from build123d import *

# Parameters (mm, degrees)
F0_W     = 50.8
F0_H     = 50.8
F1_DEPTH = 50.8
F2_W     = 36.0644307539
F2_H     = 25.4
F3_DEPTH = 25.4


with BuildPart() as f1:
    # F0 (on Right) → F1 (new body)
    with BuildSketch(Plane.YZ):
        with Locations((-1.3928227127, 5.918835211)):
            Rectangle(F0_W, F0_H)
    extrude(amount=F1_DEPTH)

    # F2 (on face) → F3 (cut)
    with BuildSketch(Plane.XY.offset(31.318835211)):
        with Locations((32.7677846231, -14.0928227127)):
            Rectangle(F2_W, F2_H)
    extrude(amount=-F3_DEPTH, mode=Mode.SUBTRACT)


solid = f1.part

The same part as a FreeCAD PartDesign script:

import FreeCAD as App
import Part
import Sketcher
Q = App.Units.Quantity


def add_polygon(sketch, points):
    """Adds a closed chain of lines whose ends are joined by coincident constraints."""
    first, n = sketch.GeometryCount, len(points)
    for a, b in zip(points, points[1:] + points[:1]):
        sketch.addGeometry(Part.LineSegment(App.Vector(*a, 0), App.Vector(*b, 0)), False)
    for i in range(n):
        sketch.addConstraint(Sketcher.Constraint("Coincident", first + i, 2, first + (i + 1) % n, 1))

doc = App.newDocument("Part")
body = doc.addObject("PartDesign::Body", "Body")

sketch1 = doc.addObject("Sketcher::SketchObject", "Sketch")
body.addObject(sketch1)
sketch1.AttachmentSupport = (doc.YZ_Plane, [""])
sketch1.MapMode = "FlatFace"
add_polygon(sketch1, [(-27, 31), (-27, -19), (24, -19), (24, 31)])
sketch1.addConstraint(Sketcher.Constraint("Vertical", 0))
sketch1.addConstraint(Sketcher.Constraint("Horizontal", 1))
sketch1.addConstraint(Sketcher.Constraint("Vertical", 2))
sketch1.addConstraint(Sketcher.Constraint("Horizontal", 3))
sketch1.addConstraint(Sketcher.Constraint("Equal", 3, 0))
sketch1.addConstraint(Sketcher.Constraint("DistanceX", 1, 1, 1, 2, Q("2 in")))
sketch1.addConstraint(Sketcher.Constraint("DistanceX", 0, 2, -1, 1, Q("26.792823 mm")))
sketch1.addConstraint(Sketcher.Constraint("DistanceY", 0, 2, -1, 1, Q("19.481165 mm")))
pad1 = doc.addObject("PartDesign::Pad", "Pad")
body.addObject(pad1)
pad1.Profile = sketch1
pad1.Length = Q("2 in")

sketch2 = doc.addObject("Sketcher::SketchObject", "Sketch001")
body.addObject(sketch2)
sketch2.AttachmentSupport = (doc.XY_Plane, [""])
sketch2.MapMode = "FlatFace"
sketch2.AttachmentOffset = App.Placement(App.Vector(0, 0, 31.318835), App.Rotation())
add_polygon(sketch2, [(15, -1), (15, -27), (51, -27), (51, -1)])
sketch2.addConstraint(Sketcher.Constraint("Vertical", 0))
sketch2.addConstraint(Sketcher.Constraint("Horizontal", 1))
sketch2.addConstraint(Sketcher.Constraint("Vertical", 2))
sketch2.addConstraint(Sketcher.Constraint("Horizontal", 3))
sketch2.addConstraint(Sketcher.Constraint("DistanceY", 0, 2, 0, 1, Q("1 in")))
sketch2.addConstraint(Sketcher.Constraint("DistanceX", -1, 1, 1, 2, Q("2 in")))
sketch2.addConstraint(Sketcher.Constraint("DistanceX", 1, 1, 1, 2, Q("36.064431 mm")))
sketch2.addConstraint(Sketcher.Constraint("DistanceY", 0, 2, -1, 1, Q("26.792823 mm")))
pocket1 = doc.addObject("PartDesign::Pocket", "Pocket")
body.addObject(pocket1)
pocket1.Profile = sketch2
pocket1.Length = Q("1 in")

doc.recompute()
